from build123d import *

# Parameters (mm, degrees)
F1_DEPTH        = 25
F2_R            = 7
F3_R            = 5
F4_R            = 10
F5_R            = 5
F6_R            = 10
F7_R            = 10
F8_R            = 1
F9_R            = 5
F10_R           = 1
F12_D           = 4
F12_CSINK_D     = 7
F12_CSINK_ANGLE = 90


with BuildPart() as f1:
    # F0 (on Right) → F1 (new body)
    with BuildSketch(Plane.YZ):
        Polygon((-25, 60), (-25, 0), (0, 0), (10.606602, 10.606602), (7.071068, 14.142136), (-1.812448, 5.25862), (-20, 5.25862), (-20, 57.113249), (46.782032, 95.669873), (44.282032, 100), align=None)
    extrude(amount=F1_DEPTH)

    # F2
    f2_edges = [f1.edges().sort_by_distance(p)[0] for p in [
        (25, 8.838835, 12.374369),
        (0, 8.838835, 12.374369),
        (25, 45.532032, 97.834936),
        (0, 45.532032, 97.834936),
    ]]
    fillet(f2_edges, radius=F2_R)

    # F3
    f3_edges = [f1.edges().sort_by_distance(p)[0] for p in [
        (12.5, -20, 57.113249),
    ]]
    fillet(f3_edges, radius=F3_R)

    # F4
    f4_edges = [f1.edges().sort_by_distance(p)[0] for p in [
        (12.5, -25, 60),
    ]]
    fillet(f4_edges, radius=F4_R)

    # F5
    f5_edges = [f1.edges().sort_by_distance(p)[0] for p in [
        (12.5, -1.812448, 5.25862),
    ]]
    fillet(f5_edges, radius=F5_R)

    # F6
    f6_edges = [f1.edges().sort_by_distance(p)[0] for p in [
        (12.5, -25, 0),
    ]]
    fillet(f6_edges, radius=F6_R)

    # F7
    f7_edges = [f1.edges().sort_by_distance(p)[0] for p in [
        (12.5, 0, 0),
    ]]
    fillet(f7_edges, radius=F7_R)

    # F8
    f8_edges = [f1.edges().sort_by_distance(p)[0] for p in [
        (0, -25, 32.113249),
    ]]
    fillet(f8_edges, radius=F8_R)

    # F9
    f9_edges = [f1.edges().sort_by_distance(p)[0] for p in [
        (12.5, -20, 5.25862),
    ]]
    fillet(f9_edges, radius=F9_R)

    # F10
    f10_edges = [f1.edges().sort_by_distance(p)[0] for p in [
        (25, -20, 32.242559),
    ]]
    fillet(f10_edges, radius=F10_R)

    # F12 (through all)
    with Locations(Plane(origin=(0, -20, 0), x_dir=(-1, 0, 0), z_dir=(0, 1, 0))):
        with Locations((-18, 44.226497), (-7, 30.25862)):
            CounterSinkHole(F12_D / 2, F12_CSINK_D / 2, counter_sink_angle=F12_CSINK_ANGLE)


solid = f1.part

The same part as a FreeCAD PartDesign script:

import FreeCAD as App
import Part
import Sketcher

V = App.Vector
Q = App.Units.Quantity


def edges_at(feature, points):
    """Names of the edges that pass closest to the given points."""
    edges = feature.Shape.Edges
    near = lambda p: min(range(len(edges)), key=lambda i: edges[i].distToShape(Part.Vertex(*p))[0])
    return sorted({f"Edge{near(p) + 1}" for p in points})

doc = App.newDocument("Part")
body = doc.addObject("PartDesign::Body", "Body")

# Sketch on YZ plane
sketch1 = doc.addObject("Sketcher::SketchObject", "Sketch")
body.addObject(sketch1)
sketch1.AttachmentSupport = (doc.YZ_Plane, [""])
sketch1.MapMode = "FlatFace"
sketch1.addGeometry([
    Part.LineSegment(V(-25, 60, 0), V(-25, 0, 0)),  # 0
    Part.LineSegment(V(-25, 0, 0), V(0, 0, 0)),  # 1
    Part.LineSegment(V(0, 0, 0), V(10.606602, 10.606602, 0)),  # 2
    Part.LineSegment(V(10.606602, 10.606602, 0), V(7.071068, 14.142136, 0)),  # 3
    Part.LineSegment(V(7.071068, 14.142136, 0), V(-1.812448, 5.25862, 0)),  # 4
    Part.LineSegment(V(-1.812448, 5.25862, 0), V(-20, 5.25862, 0)),  # 5
    Part.LineSegment(V(-20, 5.25862, 0), V(-20, 57.113249, 0)),  # 6
    Part.LineSegment(V(-20, 57.113249, 0), V(46.782032, 95.669873, 0)),  # 7
    Part.LineSegment(V(46.782032, 95.669873, 0), V(44.282032, 100, 0)),  # 8
    Part.LineSegment(V(44.282032, 100, 0), V(-25, 60, 0)),  # 9
], False)
sketch1.addConstraint([
    Sketcher.Constraint("Coincident", 0, 2, 1, 1),
    Sketcher.Constraint("Coincident", 1, 2, 2, 1),
    Sketcher.Constraint("Coincident", 2, 2, 3, 1),
    Sketcher.Constraint("Coincident", 3, 2, 4, 1),
    Sketcher.Constraint("Coincident", 4, 2, 5, 1),
    Sketcher.Constraint("Coincident", 5, 2, 6, 1),
    Sketcher.Constraint("Coincident", 6, 2, 7, 1),
    Sketcher.Constraint("Coincident", 7, 2, 8, 1),
    Sketcher.Constraint("Coincident", 8, 2, 9, 1),
    Sketcher.Constraint("Coincident", 9, 2, 0, 1),
    Sketcher.Constraint("Vertical", 0),
    Sketcher.Constraint("Horizontal", 1),
    Sketcher.Constraint("Horizontal", 5),
    Sketcher.Constraint("Vertical", 6),
    Sketcher.Constraint("Coincident", 1, 2, -1, 1),
    Sketcher.Constraint("Perpendicular", 2, 3),
    Sketcher.Constraint("Perpendicular", 3, 4),
    Sketcher.Constraint("Perpendicular", 7, 8),
    Sketcher.Constraint("Perpendicular", 8, 9),
    Sketcher.Constraint("Equal", 3, 8),
    Sketcher.Constraint("DistanceX", 1, 1, 1, 2, 25.0),
    Sketcher.Constraint("DistanceY", 0, 2, 0, 1, 60.0),
    Sketcher.Constraint("Angle", 2, Q("45 deg")),
    Sketcher.Constraint("Angle", 7, Q("30 deg")),
    Sketcher.Constraint("Distance", 2, 15.0),
    Sketcher.Constraint("Distance", 3, 5.0),
    Sketcher.Constraint("Distance", 9, 80.0),
    Sketcher.Constraint("DistanceX", 5, 2, -1, 1, 20.0),
    Sketcher.Constraint("DistanceX", 5, 2, 5, 1, 18.187552),
])
pad1 = doc.addObject("PartDesign::Pad", "Pad")
body.addObject(pad1)
pad1.Profile = sketch1
pad1.Length = 25
doc.recompute()

fillet = doc.addObject("PartDesign::Fillet", "Fillet")
body.addObject(fillet)
fillet.Base = (pad1, edges_at(pad1, [
    (25, 8.839, 12.374),
    (0, 8.839, 12.374),
    (25, 45.532, 97.835),
    (0, 45.532, 97.835),
]))
fillet.Radius = 7
doc.recompute()

fillet2 = doc.addObject("PartDesign::Fillet", "Fillet001")
body.addObject(fillet2)
fillet2.Base = (fillet, edges_at(fillet, [(12.5, -20, 57.113)]))
fillet2.Radius = 5
doc.recompute()

fillet3 = doc.addObject("PartDesign::Fillet", "Fillet002")
body.addObject(fillet3)
fillet3.Base = (fillet2, edges_at(fillet2, [(12.5, -25, 60)]))
fillet3.Radius = 10
doc.recompute()

fillet4 = doc.addObject("PartDesign::Fillet", "Fillet003")
body.addObject(fillet4)
fillet4.Base = (fillet3, edges_at(fillet3, [(12.5, -1.812, 5.259)]))
fillet4.Radius = 5
doc.recompute()

fillet5 = doc.addObject("PartDesign::Fillet", "Fillet004")
body.addObject(fillet5)
fillet5.Base = (fillet4, edges_at(fillet4, [(12.5, -25, 0)]))
fillet5.Radius = 10
doc.recompute()

fillet6 = doc.addObject("PartDesign::Fillet", "Fillet005")
body.addObject(fillet6)
fillet6.Base = (fillet5, edges_at(fillet5, [(12.5, 0, 0)]))
fillet6.Radius = 10
doc.recompute()

fillet7 = doc.addObject("PartDesign::Fillet", "Fillet006")
body.addObject(fillet7)
fillet7.Base = (fillet6, edges_at(fillet6, [(0, -25, 32.113)]))
fillet7.Radius = 1
doc.recompute()

fillet8 = doc.addObject("PartDesign::Fillet", "Fillet007")
body.addObject(fillet8)
fillet8.Base = (fillet7, edges_at(fillet7, [(12.5, -20, 5.259)]))
fillet8.Radius = 5
doc.recompute()

fillet9 = doc.addObject("PartDesign::Fillet", "Fillet008")
body.addObject(fillet9)
fillet9.Base = (fillet8, edges_at(fillet8, [(25, -20, 32.243)]))
fillet9.Radius = 1

# Sketch on XZ plane
sketch2 = doc.addObject("Sketcher::SketchObject", "Sketch001")
body.addObject(sketch2)
sketch2.AttachmentSupport = (doc.XZ_Plane, [""])
sketch2.MapMode = "FlatFace"
sketch2.AttachmentOffset = App.Placement(V(0, 0, 20), App.Rotation())
sketch2.addGeometry([
    Part.Circle(V(18, 44.226497, 0), V(0, 0, 1), 2),
    Part.Circle(V(7, 30.25862, 0), V(0, 0, 1), 2),
], False)
sketch2.addConstraint([
    Sketcher.Constraint("Equal", 0, 1),
    Sketcher.Constraint("Diameter", 0, 4.0),
    Sketcher.Constraint("DistanceX", -1, 1, 0, 3, 18.0),
    Sketcher.Constraint("DistanceX", -1, 1, 1, 3, 7.0),
    Sketcher.Constraint("DistanceY", -1, 1, 1, 3, 30.25862),
    Sketcher.Constraint("DistanceY", -1, 1, 0, 3, 44.226497),
])
doc.recompute()
hole = doc.addObject("PartDesign::Hole", "Hole")
body.addObject(hole)
hole.Profile = sketch2
hole.ThreadType = "None"
hole.Diameter = 4
hole.DepthType = "ThroughAll"
hole.HoleCutType = "Countersink"
hole.HoleCutDiameter = 7
hole.HoleCutCountersinkAngle = 90
hole.Reversed = True

doc.recompute()
